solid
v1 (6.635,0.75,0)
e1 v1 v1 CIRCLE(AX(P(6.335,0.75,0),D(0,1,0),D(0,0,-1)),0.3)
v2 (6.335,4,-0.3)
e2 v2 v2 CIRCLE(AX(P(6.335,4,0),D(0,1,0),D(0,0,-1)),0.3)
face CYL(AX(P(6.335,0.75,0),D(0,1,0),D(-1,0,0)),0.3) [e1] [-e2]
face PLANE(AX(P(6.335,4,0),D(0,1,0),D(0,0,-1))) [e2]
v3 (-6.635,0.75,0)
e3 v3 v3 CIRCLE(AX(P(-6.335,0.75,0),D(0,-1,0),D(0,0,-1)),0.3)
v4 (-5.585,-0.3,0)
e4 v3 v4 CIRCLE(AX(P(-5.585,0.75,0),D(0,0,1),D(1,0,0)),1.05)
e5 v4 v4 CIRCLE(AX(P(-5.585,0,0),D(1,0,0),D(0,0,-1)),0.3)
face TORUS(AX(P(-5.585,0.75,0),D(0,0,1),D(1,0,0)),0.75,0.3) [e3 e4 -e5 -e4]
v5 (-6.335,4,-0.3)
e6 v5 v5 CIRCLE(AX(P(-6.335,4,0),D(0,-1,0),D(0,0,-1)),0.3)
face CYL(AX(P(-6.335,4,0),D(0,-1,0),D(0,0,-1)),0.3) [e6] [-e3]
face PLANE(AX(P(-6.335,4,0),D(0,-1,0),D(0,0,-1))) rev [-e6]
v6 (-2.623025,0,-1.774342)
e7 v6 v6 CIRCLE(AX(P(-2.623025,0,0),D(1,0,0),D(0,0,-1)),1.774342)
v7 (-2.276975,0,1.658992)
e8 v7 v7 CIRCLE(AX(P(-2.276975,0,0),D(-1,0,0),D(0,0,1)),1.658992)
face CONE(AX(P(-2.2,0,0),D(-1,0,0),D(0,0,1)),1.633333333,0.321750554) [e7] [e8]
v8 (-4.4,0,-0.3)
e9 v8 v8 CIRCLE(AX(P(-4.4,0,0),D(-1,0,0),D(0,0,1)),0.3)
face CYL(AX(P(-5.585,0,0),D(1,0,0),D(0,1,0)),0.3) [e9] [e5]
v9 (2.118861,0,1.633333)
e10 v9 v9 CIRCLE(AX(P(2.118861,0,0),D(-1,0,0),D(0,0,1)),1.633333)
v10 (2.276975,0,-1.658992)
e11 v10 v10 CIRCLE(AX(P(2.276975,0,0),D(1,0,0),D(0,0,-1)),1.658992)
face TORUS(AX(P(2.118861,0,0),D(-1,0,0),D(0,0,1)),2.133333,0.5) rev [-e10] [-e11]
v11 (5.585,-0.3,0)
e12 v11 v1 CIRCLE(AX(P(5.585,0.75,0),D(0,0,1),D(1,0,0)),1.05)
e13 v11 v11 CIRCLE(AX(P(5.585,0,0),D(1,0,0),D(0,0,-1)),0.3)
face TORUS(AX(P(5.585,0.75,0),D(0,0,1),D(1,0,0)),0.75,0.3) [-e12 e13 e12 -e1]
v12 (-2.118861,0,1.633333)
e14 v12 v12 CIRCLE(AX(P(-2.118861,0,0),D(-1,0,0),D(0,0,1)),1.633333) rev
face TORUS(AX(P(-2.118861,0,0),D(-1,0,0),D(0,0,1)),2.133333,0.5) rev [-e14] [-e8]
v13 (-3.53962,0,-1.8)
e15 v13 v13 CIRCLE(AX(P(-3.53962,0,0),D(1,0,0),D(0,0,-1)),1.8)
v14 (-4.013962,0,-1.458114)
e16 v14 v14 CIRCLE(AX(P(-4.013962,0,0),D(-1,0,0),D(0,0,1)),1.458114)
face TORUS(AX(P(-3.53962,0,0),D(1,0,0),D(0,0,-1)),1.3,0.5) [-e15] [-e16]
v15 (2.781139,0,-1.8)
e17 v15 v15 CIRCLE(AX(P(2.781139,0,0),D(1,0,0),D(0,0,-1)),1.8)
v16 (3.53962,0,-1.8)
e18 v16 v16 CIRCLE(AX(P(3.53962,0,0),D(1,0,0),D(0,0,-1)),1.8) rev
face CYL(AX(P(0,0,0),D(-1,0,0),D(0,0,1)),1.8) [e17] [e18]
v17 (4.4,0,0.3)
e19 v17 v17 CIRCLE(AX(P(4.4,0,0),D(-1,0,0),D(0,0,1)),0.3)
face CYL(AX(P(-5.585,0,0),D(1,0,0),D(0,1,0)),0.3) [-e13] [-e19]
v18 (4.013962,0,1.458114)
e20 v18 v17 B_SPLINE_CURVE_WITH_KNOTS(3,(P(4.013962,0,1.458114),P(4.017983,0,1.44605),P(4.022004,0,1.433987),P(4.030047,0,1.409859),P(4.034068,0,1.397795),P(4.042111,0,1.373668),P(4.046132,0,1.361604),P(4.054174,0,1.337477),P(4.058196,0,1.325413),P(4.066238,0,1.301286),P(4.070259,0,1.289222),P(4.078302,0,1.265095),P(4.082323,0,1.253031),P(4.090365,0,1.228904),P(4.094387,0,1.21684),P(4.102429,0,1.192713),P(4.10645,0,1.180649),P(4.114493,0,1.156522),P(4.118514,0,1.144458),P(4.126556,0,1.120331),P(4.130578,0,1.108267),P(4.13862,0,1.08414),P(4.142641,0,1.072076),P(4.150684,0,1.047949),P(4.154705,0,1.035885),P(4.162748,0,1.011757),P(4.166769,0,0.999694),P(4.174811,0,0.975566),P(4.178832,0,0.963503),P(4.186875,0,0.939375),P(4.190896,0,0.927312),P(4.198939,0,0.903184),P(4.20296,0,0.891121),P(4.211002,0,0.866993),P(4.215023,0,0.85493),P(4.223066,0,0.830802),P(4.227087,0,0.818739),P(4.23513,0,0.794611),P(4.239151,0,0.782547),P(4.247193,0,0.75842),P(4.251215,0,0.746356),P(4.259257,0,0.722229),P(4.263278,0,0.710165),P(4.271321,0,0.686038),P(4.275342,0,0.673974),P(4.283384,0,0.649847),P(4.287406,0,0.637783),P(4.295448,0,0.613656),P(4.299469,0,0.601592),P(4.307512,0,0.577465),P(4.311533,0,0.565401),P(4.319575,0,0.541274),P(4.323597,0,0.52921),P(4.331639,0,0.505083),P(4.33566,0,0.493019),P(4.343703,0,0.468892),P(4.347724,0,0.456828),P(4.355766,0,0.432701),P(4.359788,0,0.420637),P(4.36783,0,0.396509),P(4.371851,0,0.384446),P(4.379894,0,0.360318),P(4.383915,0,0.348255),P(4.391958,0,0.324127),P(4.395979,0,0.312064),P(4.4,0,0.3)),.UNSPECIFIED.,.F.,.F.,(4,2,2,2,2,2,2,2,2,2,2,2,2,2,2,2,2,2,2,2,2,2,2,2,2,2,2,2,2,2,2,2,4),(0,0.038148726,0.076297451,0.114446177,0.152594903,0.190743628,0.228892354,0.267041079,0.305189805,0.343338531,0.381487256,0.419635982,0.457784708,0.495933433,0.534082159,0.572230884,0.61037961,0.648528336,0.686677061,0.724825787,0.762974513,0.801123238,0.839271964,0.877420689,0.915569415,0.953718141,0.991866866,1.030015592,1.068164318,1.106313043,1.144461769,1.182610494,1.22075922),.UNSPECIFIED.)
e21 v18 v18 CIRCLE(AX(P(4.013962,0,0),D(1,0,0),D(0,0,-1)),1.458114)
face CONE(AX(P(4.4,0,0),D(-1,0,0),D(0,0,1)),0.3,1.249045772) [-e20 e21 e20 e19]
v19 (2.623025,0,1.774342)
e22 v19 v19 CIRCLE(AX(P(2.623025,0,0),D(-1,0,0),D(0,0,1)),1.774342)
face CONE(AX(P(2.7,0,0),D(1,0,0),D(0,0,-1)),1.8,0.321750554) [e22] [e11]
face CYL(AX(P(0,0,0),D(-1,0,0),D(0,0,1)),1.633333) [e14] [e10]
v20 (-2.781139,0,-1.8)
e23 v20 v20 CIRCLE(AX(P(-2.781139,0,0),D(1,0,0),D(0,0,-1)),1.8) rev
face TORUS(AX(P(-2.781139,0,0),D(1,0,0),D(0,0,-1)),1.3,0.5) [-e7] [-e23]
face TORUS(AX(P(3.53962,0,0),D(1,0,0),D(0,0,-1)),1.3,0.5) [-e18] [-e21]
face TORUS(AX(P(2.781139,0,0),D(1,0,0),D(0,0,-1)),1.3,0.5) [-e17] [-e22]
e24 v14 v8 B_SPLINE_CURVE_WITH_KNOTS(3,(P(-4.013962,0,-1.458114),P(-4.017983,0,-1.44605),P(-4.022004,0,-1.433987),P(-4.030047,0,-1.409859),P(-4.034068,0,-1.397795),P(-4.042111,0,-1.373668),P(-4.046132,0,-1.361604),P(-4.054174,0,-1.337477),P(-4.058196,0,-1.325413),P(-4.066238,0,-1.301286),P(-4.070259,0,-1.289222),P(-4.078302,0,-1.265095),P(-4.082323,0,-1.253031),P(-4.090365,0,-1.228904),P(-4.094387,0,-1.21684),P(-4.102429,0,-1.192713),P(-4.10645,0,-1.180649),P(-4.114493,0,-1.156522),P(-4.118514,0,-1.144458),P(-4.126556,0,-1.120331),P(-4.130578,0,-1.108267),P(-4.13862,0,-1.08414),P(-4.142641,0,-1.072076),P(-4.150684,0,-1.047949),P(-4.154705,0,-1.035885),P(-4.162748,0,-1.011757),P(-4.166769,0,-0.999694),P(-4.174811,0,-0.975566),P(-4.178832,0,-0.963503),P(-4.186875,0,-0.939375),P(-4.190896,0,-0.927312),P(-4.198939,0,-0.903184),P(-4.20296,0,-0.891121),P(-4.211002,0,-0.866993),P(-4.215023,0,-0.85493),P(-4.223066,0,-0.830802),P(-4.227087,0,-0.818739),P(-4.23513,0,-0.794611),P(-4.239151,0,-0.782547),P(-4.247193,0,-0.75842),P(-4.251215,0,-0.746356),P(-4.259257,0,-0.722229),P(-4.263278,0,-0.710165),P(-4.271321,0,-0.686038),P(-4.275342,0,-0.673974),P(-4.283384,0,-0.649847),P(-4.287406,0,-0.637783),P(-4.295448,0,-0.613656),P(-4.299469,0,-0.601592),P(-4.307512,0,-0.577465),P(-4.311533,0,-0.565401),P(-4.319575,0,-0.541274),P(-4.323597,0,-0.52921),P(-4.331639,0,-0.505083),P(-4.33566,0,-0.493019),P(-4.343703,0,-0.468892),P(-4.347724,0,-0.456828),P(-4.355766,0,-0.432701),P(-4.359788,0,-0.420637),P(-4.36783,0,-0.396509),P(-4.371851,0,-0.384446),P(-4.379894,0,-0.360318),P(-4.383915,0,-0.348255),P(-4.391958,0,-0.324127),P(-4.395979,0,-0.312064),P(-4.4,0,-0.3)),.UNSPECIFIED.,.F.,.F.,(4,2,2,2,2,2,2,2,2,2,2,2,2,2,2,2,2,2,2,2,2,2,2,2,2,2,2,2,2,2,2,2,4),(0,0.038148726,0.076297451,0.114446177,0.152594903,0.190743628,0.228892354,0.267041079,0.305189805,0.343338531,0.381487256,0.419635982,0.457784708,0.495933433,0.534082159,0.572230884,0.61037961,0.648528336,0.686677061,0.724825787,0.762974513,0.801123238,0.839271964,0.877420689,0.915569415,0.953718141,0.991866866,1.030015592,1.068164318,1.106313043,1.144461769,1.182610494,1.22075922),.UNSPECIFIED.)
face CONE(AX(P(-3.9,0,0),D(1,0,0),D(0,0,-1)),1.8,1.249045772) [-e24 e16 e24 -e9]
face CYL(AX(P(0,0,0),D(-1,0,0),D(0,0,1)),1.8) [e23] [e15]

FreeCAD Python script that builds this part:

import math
import FreeCAD as App
import Part
import Sketcher
Q = App.Units.Quantity


def edges_at(feature, points):
    """Names of the edges that pass closest to the given points."""
    edges = feature.Shape.Edges
    near = lambda p: min(range(len(edges)), key=lambda i: edges[i].distToShape(Part.Vertex(*p))[0])
    return sorted({f"Edge{near(p) + 1}" for p in points})

doc = App.newDocument("Part")
params = doc.addObject("Spreadsheet::Sheet", "Params")
for row, (alias, value) in enumerate([
    ("sketch1_width", "1.2 mm"),
    ("sketch1_width2", "4.4 mm"),
    ("sketch1_width3", "8.8 mm"),
    ("sketch1_height", "0.3 mm"),
    ("revolution_angle", "360 deg"),
    ("fillet_radius", "0.5 mm"),
    ("sketch2_diameter", "0.6 mm"),
    ("sketch3_radius", "0.75 mm"),
    ("sketch3_width", "11.17 mm"),
], start=1):
    params.set(f"A{row}", alias)
    params.set(f"B{row}", "=" + value)
    params.setAlias(f"B{row}", alias)

body = doc.addObject("PartDesign::Body", "Body")

# Sketch on XY plane
sketch1 = body.newObject("Sketcher::SketchObject", "Sketch")
sketch1.AttachmentSupport = (doc.getObject("XY_Plane"), [""])
sketch1.MapMode = "FlatFace"
sketch1.addGeometry([
    Part.LineSegment(App.Vector(4.4, 0, 0), App.Vector(4.4, 0.3, 0)),  # 0
    Part.LineSegment(App.Vector(4.4, 0.3, 0), App.Vector(3.9, 1.8, 0)),  # 1
    Part.LineSegment(App.Vector(3.9, 1.8, 0), App.Vector(2.7, 1.8, 0)),  # 2
    Part.LineSegment(App.Vector(2.7, 1.8, 0), App.Vector(2.2, 1.63, 0)),  # 3
    Part.LineSegment(App.Vector(2.2, 1.63, 0), App.Vector(-2.2, 1.63, 0)),  # 4
    Part.LineSegment(App.Vector(-2.2, 1.63, 0), App.Vector(-2.7, 1.8, 0)),  # 5
    Part.LineSegment(App.Vector(-2.7, 1.8, 0), App.Vector(-3.9, 1.8, 0)),  # 6
    Part.LineSegment(App.Vector(-3.9, 1.8, 0), App.Vector(-4.4, 0.3, 0)),  # 7
    Part.LineSegment(App.Vector(-4.4, 0.3, 0), App.Vector(-4.4, 0, 0)),  # 8
    Part.LineSegment(App.Vector(-4.4, 0, 0), App.Vector(4.4, 0, 0)),  # 9
], False)
sketch1.addConstraint([
    Sketcher.Constraint("Coincident", 0, 2, 1, 1),
    Sketcher.Constraint("Coincident", 1, 2, 2, 1),
    Sketcher.Constraint("Coincident", 2, 2, 3, 1),
    Sketcher.Constraint("Coincident", 3, 2, 4, 1),
    Sketcher.Constraint("Coincident", 4, 2, 5, 1),
    Sketcher.Constraint("Coincident", 5, 2, 6, 1),
    Sketcher.Constraint("Coincident", 6, 2, 7, 1),
    Sketcher.Constraint("Coincident", 7, 2, 8, 1),
    Sketcher.Constraint("Coincident", 8, 2, 9, 1),
    Sketcher.Constraint("Coincident", 9, 2, 0, 1),
    Sketcher.Constraint("Vertical", 0),
    Sketcher.Constraint("Horizontal", 2),
    Sketcher.Constraint("Horizontal", 4),
    Sketcher.Constraint("Horizontal", 6),
    Sketcher.Constraint("Vertical", 8),
    Sketcher.Constraint("Horizontal", 9),
    Sketcher.Constraint("Symmetric", 8, 2, 9, 2, -1, 1),
    Sketcher.Constraint("Symmetric", 2, 2, 5, 2, -2),
    Sketcher.Constraint("Perpendicular", 1, 3),
    Sketcher.Constraint("Perpendicular", 5, 7),
    Sketcher.Constraint("Horizontal", 0, 2, 7, 2),
    Sketcher.Constraint("Equal", 2, 6),
    Sketcher.Constraint("DistanceX", 2, 2, 2, 1, Q("1.2 mm")),
    Sketcher.Constraint("DistanceX", 4, 2, 4, 1, Q("4.4 mm")),
    Sketcher.Constraint("DistanceX", 9, 1, 9, 2, Q("8.8 mm")),
    Sketcher.Constraint("DistanceY", 0, 1, 0, 2, Q("0.3 mm")),
    Sketcher.Constraint("DistanceX", -1, 1, 1, 2, Q("3.9 mm")),
    Sketcher.Constraint("DistanceY", -1, 1, 1, 2, Q("1.8 mm")),
])
sketch1.setExpression("Constraints[22]", "Params.sketch1_width")
sketch1.setExpression("Constraints[23]", "Params.sketch1_width2")
sketch1.setExpression("Constraints[24]", "Params.sketch1_width3")
sketch1.setExpression("Constraints[25]", "Params.sketch1_height")
revolution = body.newObject("PartDesign::Revolution", "Revolution")
revolution.Profile = sketch1
revolution.ReferenceAxis = (sketch1, ["H_Axis"])
revolution.setExpression("Angle", "Params.revolution_angle")
doc.recompute()

fillet = body.newObject("PartDesign::Fillet", "Fillet")
fillet.Base = (revolution, edges_at(revolution, [
    (2.7, 0, -1.8),
    (3.9, 0, -1.8),
    (-3.9, 0, -1.8),
    (-2.7, 0, -1.8),
    (-2.2, 0, -1.633),
    (2.2, 0, -1.633),
]))
fillet.setExpression("Radius", "Params.fillet_radius")

# Sketch on YZ plane
sketch2 = body.newObject("Sketcher::SketchObject", "Sketch001")
sketch2.AttachmentSupport = (doc.getObject("YZ_Plane"), [""])
sketch2.MapMode = "FlatFace"
sketch2.AttachmentOffset = App.Placement(App.Vector(0, 0, 4.4), App.Rotation())
sketch2.addGeometry(Part.Circle(App.Vector(0, 0, 0), App.Vector(0, 0, 1), 0.3), False)
sketch2.addConstraint([
    Sketcher.Constraint("Coincident", 0, 3, -1, 1),
    Sketcher.Constraint("Diameter", 0, Q("0.6 mm")),
])
sketch2.setExpression("Constraints[1]", "Params.sketch2_diameter")

# Sketch on XY plane
sketch3 = body.newObject("Sketcher::SketchObject", "Sketch002")
sketch3.AttachmentSupport = (doc.getObject("XY_Plane"), [""])
sketch3.MapMode = "FlatFace"
sketch3.addGeometry([
    Part.LineSegment(App.Vector(6.3, 4, 0), App.Vector(6.3, 0.8, 0)),  # 0
    Part.ArcOfCircle(Part.Circle(App.Vector(5.6, 0.8, 0), App.Vector(0, 0, 1), 0.8), math.radians(-90), math.radians(0)),  # 1
    Part.LineSegment(App.Vector(5.6, 0, 0), App.Vector(-5.6, 0, 0)),  # 2
    Part.ArcOfCircle(Part.Circle(App.Vector(-5.6, 0.8, 0), App.Vector(0, 0, 1), 0.8), math.radians(180), math.radians(270)),  # 3
    Part.LineSegment(App.Vector(-6.3, 0.8, 0), App.Vector(-6.3, 4, 0)),  # 4
], False)
sketch3.addConstraint([
    Sketcher.Constraint("Tangent", 0, 2, 1, 2),
    Sketcher.Constraint("Tangent", 1, 1, 2, 1),
    Sketcher.Constraint("Tangent", 2, 2, 3, 2),
    Sketcher.Constraint("Tangent", 3, 1, 4, 1),
    Sketcher.Constraint("Vertical", 0),
    Sketcher.Constraint("Horizontal", 2),
    Sketcher.Constraint("Vertical", 4),
    Sketcher.Constraint("Equal", 1, 3),
    Sketcher.Constraint("Symmetric", 1, 1, 2, 2, -1, 1),
    Sketcher.Constraint("Horizontal", 0, 1, 4, 2),
    Sketcher.Constraint("Radius", 1, Q("0.75 mm")),
    Sketcher.Constraint("DistanceY", -1, 1, 0, 1, Q("4 mm")),
    Sketcher.Constraint("DistanceX", 2, 2, 2, 1, Q("11.17 mm")),
])
sketch3.setExpression("Constraints[10]", "Params.sketch3_radius")
sketch3.setExpression("Constraints[12]", "Params.sketch3_width")
doc.recompute()

additivepipe = body.newObject("PartDesign::AdditivePipe", "AdditivePipe")
additivepipe.Profile = sketch2
additivepipe.Spine = (sketch3, ["Edge1", "Edge2", "Edge3", "Edge4", "Edge5"])

doc.recompute()
